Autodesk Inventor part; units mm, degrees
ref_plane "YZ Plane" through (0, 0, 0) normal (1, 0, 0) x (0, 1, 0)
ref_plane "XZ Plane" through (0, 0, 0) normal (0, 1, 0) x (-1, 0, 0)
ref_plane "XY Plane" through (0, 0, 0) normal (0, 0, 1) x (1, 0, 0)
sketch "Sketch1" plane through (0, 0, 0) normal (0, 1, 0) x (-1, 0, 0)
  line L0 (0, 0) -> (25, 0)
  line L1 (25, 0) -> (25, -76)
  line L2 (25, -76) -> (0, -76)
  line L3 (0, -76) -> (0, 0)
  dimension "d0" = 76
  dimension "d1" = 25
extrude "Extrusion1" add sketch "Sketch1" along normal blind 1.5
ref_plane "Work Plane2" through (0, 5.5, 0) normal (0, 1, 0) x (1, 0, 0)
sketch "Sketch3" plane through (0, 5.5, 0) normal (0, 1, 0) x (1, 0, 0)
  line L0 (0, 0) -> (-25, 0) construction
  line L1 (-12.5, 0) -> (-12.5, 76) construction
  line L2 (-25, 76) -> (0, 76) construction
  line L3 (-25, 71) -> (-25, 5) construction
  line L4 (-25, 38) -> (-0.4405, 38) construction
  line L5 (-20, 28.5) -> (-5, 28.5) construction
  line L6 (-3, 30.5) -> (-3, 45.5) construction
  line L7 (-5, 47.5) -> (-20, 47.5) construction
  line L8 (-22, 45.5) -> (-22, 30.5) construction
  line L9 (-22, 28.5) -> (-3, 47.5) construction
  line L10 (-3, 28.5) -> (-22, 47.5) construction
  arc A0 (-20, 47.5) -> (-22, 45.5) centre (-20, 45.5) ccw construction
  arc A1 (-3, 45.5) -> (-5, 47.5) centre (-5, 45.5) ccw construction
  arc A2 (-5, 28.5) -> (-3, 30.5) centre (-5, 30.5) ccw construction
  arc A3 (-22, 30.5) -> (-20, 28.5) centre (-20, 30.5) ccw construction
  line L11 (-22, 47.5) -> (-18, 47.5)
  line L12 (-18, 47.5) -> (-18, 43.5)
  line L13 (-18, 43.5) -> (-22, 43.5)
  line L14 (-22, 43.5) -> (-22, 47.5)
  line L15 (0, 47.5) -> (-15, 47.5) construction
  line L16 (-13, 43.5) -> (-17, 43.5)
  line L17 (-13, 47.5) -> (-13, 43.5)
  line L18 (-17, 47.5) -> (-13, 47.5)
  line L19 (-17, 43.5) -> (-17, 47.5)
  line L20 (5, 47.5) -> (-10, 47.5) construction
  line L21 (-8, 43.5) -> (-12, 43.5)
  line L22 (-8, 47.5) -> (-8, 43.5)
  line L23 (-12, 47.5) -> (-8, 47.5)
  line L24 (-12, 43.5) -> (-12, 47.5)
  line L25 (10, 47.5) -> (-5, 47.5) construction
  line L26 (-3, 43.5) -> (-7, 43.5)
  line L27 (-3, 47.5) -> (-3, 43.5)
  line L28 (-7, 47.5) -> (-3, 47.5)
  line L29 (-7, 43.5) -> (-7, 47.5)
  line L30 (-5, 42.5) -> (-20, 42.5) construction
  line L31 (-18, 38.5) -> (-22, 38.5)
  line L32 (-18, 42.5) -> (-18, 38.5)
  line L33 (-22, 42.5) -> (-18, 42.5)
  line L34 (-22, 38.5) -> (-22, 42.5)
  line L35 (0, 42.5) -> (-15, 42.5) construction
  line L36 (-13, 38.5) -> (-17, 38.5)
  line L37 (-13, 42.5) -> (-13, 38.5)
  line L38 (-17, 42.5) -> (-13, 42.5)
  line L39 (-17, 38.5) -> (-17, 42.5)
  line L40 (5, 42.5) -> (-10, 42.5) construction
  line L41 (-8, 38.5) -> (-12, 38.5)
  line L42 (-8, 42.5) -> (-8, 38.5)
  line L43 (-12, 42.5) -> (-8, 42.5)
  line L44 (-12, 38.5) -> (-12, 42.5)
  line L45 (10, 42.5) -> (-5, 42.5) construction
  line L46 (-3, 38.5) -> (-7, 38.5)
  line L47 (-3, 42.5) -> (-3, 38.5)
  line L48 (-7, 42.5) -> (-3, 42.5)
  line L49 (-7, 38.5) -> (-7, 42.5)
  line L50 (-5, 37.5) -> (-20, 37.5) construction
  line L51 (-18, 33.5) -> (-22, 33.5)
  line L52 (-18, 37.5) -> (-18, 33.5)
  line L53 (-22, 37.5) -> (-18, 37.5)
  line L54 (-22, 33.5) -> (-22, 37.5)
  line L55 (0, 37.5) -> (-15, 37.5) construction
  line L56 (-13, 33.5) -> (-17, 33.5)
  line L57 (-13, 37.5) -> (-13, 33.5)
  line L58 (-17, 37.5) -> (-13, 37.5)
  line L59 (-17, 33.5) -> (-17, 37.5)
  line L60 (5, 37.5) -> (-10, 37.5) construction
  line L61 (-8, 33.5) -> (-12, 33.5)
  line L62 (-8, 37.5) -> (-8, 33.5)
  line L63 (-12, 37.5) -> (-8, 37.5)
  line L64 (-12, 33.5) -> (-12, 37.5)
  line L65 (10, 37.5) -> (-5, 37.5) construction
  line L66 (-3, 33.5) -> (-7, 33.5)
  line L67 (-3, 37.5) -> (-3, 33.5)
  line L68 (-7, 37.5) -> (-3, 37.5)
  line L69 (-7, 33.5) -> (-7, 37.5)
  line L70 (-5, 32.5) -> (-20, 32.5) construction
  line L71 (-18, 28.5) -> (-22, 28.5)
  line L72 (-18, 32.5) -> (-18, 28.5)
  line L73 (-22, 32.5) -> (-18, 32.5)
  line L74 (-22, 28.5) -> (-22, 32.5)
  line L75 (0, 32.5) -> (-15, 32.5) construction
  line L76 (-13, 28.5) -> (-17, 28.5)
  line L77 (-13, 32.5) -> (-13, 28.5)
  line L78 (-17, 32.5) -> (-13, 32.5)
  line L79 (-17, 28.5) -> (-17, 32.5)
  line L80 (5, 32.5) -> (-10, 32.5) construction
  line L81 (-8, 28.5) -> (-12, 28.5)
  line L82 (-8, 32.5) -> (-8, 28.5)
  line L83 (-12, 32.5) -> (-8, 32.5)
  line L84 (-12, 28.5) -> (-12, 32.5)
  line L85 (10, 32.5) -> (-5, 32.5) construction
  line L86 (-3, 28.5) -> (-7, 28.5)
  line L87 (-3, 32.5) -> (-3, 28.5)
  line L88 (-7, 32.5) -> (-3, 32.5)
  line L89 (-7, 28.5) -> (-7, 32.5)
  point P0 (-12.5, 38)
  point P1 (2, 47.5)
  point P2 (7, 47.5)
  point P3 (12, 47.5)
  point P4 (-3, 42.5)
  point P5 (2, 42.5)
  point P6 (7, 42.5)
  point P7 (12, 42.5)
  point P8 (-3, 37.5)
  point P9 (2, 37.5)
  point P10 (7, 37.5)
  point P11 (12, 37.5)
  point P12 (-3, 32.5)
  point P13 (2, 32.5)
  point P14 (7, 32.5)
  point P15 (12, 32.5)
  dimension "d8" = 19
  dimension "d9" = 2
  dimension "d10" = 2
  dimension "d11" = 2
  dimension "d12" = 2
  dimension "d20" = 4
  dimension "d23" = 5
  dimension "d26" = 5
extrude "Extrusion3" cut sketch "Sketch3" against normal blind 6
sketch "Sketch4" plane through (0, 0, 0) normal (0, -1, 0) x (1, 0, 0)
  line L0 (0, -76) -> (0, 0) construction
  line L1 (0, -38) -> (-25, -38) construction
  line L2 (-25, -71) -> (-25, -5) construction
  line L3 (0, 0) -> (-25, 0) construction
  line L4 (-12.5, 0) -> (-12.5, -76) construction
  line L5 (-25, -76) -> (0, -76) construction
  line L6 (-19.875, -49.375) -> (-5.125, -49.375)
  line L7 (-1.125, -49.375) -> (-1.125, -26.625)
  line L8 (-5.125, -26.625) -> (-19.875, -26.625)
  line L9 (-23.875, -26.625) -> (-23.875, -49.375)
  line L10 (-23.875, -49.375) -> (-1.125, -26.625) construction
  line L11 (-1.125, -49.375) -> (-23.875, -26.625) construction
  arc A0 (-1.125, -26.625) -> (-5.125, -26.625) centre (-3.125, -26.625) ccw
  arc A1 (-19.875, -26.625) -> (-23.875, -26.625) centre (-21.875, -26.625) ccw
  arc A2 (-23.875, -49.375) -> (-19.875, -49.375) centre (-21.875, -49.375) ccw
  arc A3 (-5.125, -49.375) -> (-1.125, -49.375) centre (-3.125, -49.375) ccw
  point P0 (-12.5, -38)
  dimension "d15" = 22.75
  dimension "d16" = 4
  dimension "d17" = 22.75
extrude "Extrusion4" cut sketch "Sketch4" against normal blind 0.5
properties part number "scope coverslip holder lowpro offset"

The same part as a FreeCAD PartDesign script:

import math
import FreeCAD as App
import Part
import Sketcher

V = App.Vector


def add_polygon(sketch, points):
    """Adds a closed chain of lines whose ends are joined by coincident constraints."""
    first, n = sketch.GeometryCount, len(points)
    for a, b in zip(points, points[1:] + points[:1]):
        sketch.addGeometry(Part.LineSegment(App.Vector(*a, 0), App.Vector(*b, 0)), False)
    for i in range(n):
        sketch.addConstraint(Sketcher.Constraint("Coincident", first + i, 2, first + (i + 1) % n, 1))

doc = App.newDocument("Part")
params = doc.addObject("Spreadsheet::Sheet", "Params")
for row, (alias, value) in enumerate([
    ("sketch1_width", "25 mm"),
    ("sketch1_height", "76 mm"),
    ("pad1_length", "1.5 mm"),
    ("sketch2_width", "4 mm"),
    ("pocket1_length", "6 mm"),
    ("sketch3_radius", "2 mm"),
    ("sketch3_height", "22.75 mm"),
    ("pocket2_length", "0.5 mm"),
], start=1):
    params.set(f"A{row}", alias)
    params.set(f"B{row}", "=" + value)
    params.setAlias(f"B{row}", alias)

body = doc.addObject("PartDesign::Body", "Body")

sketch1 = body.newObject("Sketcher::SketchObject", "Sketch")
sketch1.AttachmentSupport = (doc.getObject("XZ_Plane"), [""])
sketch1.MapMode = "FlatFace"
add_polygon(sketch1, [(-25, 0), (0, 0), (0, -76), (-25, -76)])
sketch1.addConstraint(Sketcher.Constraint("Horizontal", 0))
sketch1.addConstraint(Sketcher.Constraint("Vertical", 1))
sketch1.addConstraint(Sketcher.Constraint("Horizontal", 2))
sketch1.addConstraint(Sketcher.Constraint("Vertical", 3))
sketch1.addConstraint(Sketcher.Constraint("Coincident", 0, 2, -1, 1))
sketch1.addConstraint(Sketcher.Constraint("DistanceX", 0, 1, 0, 2, 25.0))
sketch1.addConstraint(Sketcher.Constraint("DistanceY", 1, 2, 1, 1, 76.0))
sketch1.setExpression("Constraints[9]", "Params.sketch1_width")
sketch1.setExpression("Constraints[10]", "Params.sketch1_height")
pad1 = body.newObject("PartDesign::Pad", "Pad")
pad1.Profile = sketch1
pad1.setExpression("Length", "Params.pad1_length")
pad1.Reversed = True

sketch2 = body.newObject("Sketcher::SketchObject", "Sketch001")
sketch2.AttachmentSupport = (doc.getObject("XZ_Plane"), [""])
sketch2.MapMode = "FlatFace"
sketch2.AttachmentOffset = App.Placement(V(0, 0, -5.5), App.Rotation())
add_polygon(sketch2, [(-18, -47.5), (-22, -47.5), (-22, -43.5), (-18, -43.5)])
add_polygon(sketch2, [(-17, -43.5), (-13, -43.5), (-13, -47.5), (-17, -47.5)])
add_polygon(sketch2, [(-12, -43.5), (-8, -43.5), (-8, -47.5), (-12, -47.5)])
add_polygon(sketch2, [(-7, -43.5), (-3, -43.5), (-3, -47.5), (-7, -47.5)])
add_polygon(sketch2, [(-22, -38.5), (-18, -38.5), (-18, -42.5), (-22, -42.5)])
add_polygon(sketch2, [(-17, -38.5), (-13, -38.5), (-13, -42.5), (-17, -42.5)])
add_polygon(sketch2, [(-12, -38.5), (-8, -38.5), (-8, -42.5), (-12, -42.5)])
add_polygon(sketch2, [(-7, -38.5), (-3, -38.5), (-3, -42.5), (-7, -42.5)])
add_polygon(sketch2, [(-22, -33.5), (-18, -33.5), (-18, -37.5), (-22, -37.5)])
add_polygon(sketch2, [(-17, -33.5), (-13, -33.5), (-13, -37.5), (-17, -37.5)])
add_polygon(sketch2, [(-12, -33.5), (-8, -33.5), (-8, -37.5), (-12, -37.5)])
add_polygon(sketch2, [(-7, -33.5), (-3, -33.5), (-3, -37.5), (-7, -37.5)])
add_polygon(sketch2, [(-22, -28.5), (-18, -28.5), (-18, -32.5), (-22, -32.5)])
add_polygon(sketch2, [(-17, -28.5), (-13, -28.5), (-13, -32.5), (-17, -32.5)])
add_polygon(sketch2, [(-12, -28.5), (-8, -28.5), (-8, -32.5), (-12, -32.5)])
add_polygon(sketch2, [(-7, -28.5), (-3, -28.5), (-3, -32.5), (-7, -32.5)])
sketch2.addConstraint(Sketcher.Constraint("Horizontal", 0))
sketch2.addConstraint(Sketcher.Constraint("Vertical", 1))
sketch2.addConstraint(Sketcher.Constraint("Horizontal", 2))
sketch2.addConstraint(Sketcher.Constraint("Vertical", 3))
sketch2.addConstraint(Sketcher.Constraint("Horizontal", 4))
sketch2.addConstraint(Sketcher.Constraint("Vertical", 5))
sketch2.addConstraint(Sketcher.Constraint("Horizontal", 6))
sketch2.addConstraint(Sketcher.Constraint("Vertical", 7))
sketch2.addConstraint(Sketcher.Constraint("Horizontal", 8))
sketch2.addConstraint(Sketcher.Constraint("Vertical", 9))
sketch2.addConstraint(Sketcher.Constraint("Horizontal", 10))
sketch2.addConstraint(Sketcher.Constraint("Vertical", 11))
sketch2.addConstraint(Sketcher.Constraint("Horizontal", 12))
sketch2.addConstraint(Sketcher.Constraint("Vertical", 13))
sketch2.addConstraint(Sketcher.Constraint("Horizontal", 14))
sketch2.addConstraint(Sketcher.Constraint("Vertical", 15))
sketch2.addConstraint(Sketcher.Constraint("Horizontal", 16))
sketch2.addConstraint(Sketcher.Constraint("Vertical", 17))
sketch2.addConstraint(Sketcher.Constraint("Horizontal", 18))
sketch2.addConstraint(Sketcher.Constraint("Vertical", 19))
sketch2.addConstraint(Sketcher.Constraint("Horizontal", 20))
sketch2.addConstraint(Sketcher.Constraint("Vertical", 21))
sketch2.addConstraint(Sketcher.Constraint("Horizontal", 22))
sketch2.addConstraint(Sketcher.Constraint("Vertical", 23))
sketch2.addConstraint(Sketcher.Constraint("Horizontal", 24))
sketch2.addConstraint(Sketcher.Constraint("Vertical", 25))
sketch2.addConstraint(Sketcher.Constraint("Horizontal", 26))
sketch2.addConstraint(Sketcher.Constraint("Vertical", 27))
sketch2.addConstraint(Sketcher.Constraint("Horizontal", 28))
sketch2.addConstraint(Sketcher.Constraint("Vertical", 29))
sketch2.addConstraint(Sketcher.Constraint("Horizontal", 30))
sketch2.addConstraint(Sketcher.Constraint("Vertical", 31))
sketch2.addConstraint(Sketcher.Constraint("Horizontal", 32))
sketch2.addConstraint(Sketcher.Constraint("Vertical", 33))
sketch2.addConstraint(Sketcher.Constraint("Horizontal", 34))
sketch2.addConstraint(Sketcher.Constraint("Vertical", 35))
sketch2.addConstraint(Sketcher.Constraint("Horizontal", 36))
sketch2.addConstraint(Sketcher.Constraint("Vertical", 37))
sketch2.addConstraint(Sketcher.Constraint("Horizontal", 38))
sketch2.addConstraint(Sketcher.Constraint("Vertical", 39))
sketch2.addConstraint(Sketcher.Constraint("Horizontal", 40))
sketch2.addConstraint(Sketcher.Constraint("Vertical", 41))
sketch2.addConstraint(Sketcher.Constraint("Horizontal", 42))
sketch2.addConstraint(Sketcher.Constraint("Vertical", 43))
sketch2.addConstraint(Sketcher.Constraint("Horizontal", 44))
sketch2.addConstraint(Sketcher.Constraint("Vertical", 45))
sketch2.addConstraint(Sketcher.Constraint("Horizontal", 46))
sketch2.addConstraint(Sketcher.Constraint("Vertical", 47))
sketch2.addConstraint(Sketcher.Constraint("Horizontal", 48))
sketch2.addConstraint(Sketcher.Constraint("Vertical", 49))
sketch2.addConstraint(Sketcher.Constraint("Horizontal", 50))
sketch2.addConstraint(Sketcher.Constraint("Vertical", 51))
sketch2.addConstraint(Sketcher.Constraint("Horizontal", 52))
sketch2.addConstraint(Sketcher.Constraint("Vertical", 53))
sketch2.addConstraint(Sketcher.Constraint("Horizontal", 54))
sketch2.addConstraint(Sketcher.Constraint("Vertical", 55))
sketch2.addConstraint(Sketcher.Constraint("Horizontal", 56))
sketch2.addConstraint(Sketcher.Constraint("Vertical", 57))
sketch2.addConstraint(Sketcher.Constraint("Horizontal", 58))
sketch2.addConstraint(Sketcher.Constraint("Vertical", 59))
sketch2.addConstraint(Sketcher.Constraint("Horizontal", 60))
sketch2.addConstraint(Sketcher.Constraint("Vertical", 61))
sketch2.addConstraint(Sketcher.Constraint("Horizontal", 62))
sketch2.addConstraint(Sketcher.Constraint("Vertical", 63))
sketch2.addConstraint(Sketcher.Constraint("Horizontal", 2, 2, 4, 2))
sketch2.addConstraint(Sketcher.Constraint("Horizontal", 3, 2, 5, 2))
sketch2.addConstraint(Sketcher.Constraint("Horizontal", 7, 2, 8, 2))
sketch2.addConstraint(Sketcher.Constraint("Horizontal", 6, 2, 9, 2))
sketch2.addConstraint(Sketcher.Constraint("Horizontal", 11, 2, 12, 2))
sketch2.addConstraint(Sketcher.Constraint("Horizontal", 10, 2, 13, 2))
sketch2.addConstraint(Sketcher.Constraint("Horizontal", 19, 2, 20, 2))
sketch2.addConstraint(Sketcher.Constraint("Horizontal", 18, 2, 21, 2))
sketch2.addConstraint(Sketcher.Constraint("Horizontal", 23, 2, 24, 2))
sketch2.addConstraint(Sketcher.Constraint("Horizontal", 22, 2, 25, 2))
sketch2.addConstraint(Sketcher.Constraint("Horizontal", 27, 2, 28, 2))
sketch2.addConstraint(Sketcher.Constraint("Horizontal", 26, 2, 29, 2))
sketch2.addConstraint(Sketcher.Constraint("Horizontal", 35, 2, 36, 2))
sketch2.addConstraint(Sketcher.Constraint("Horizontal", 34, 2, 37, 2))
sketch2.addConstraint(Sketcher.Constraint("Horizontal", 39, 2, 40, 2))
sketch2.addConstraint(Sketcher.Constraint("Horizontal", 38, 2, 41, 2))
sketch2.addConstraint(Sketcher.Constraint("Horizontal", 43, 2, 44, 2))
sketch2.addConstraint(Sketcher.Constraint("Horizontal", 42, 2, 45, 2))
sketch2.addConstraint(Sketcher.Constraint("Horizontal", 51, 2, 52, 2))
sketch2.addConstraint(Sketcher.Constraint("Horizontal", 50, 2, 53, 2))
sketch2.addConstraint(Sketcher.Constraint("Horizontal", 55, 2, 56, 2))
sketch2.addConstraint(Sketcher.Constraint("Horizontal", 54, 2, 57, 2))
sketch2.addConstraint(Sketcher.Constraint("Horizontal", 59, 2, 60, 2))
sketch2.addConstraint(Sketcher.Constraint("Horizontal", 58, 2, 61, 2))
sketch2.addConstraint(Sketcher.Constraint("Vertical", 3, 2, 16, 2))
sketch2.addConstraint(Sketcher.Constraint("Vertical", 1, 2, 18, 2))
sketch2.addConstraint(Sketcher.Constraint("Vertical", 5, 2, 20, 2))
sketch2.addConstraint(Sketcher.Constraint("Vertical", 7, 2, 22, 2))
sketch2.addConstraint(Sketcher.Constraint("Vertical", 9, 2, 24, 2))
sketch2.addConstraint(Sketcher.Constraint("Vertical", 11, 2, 26, 2))
sketch2.addConstraint(Sketcher.Constraint("Vertical", 13, 2, 28, 2))
sketch2.addConstraint(Sketcher.Constraint("Vertical", 15, 2, 30, 2))
sketch2.addConstraint(Sketcher.Constraint("Vertical", 17, 2, 32, 2))
sketch2.addConstraint(Sketcher.Constraint("Vertical", 19, 2, 34, 2))
sketch2.addConstraint(Sketcher.Constraint("Vertical", 21, 2, 36, 2))
sketch2.addConstraint(Sketcher.Constraint("Vertical", 23, 2, 38, 2))
sketch2.addConstraint(Sketcher.Constraint("Vertical", 25, 2, 40, 2))
sketch2.addConstraint(Sketcher.Constraint("Vertical", 27, 2, 42, 2))
sketch2.addConstraint(Sketcher.Constraint("Vertical", 29, 2, 44, 2))
sketch2.addConstraint(Sketcher.Constraint("Vertical", 31, 2, 46, 2))
sketch2.addConstraint(Sketcher.Constraint("Vertical", 33, 2, 48, 2))
sketch2.addConstraint(Sketcher.Constraint("Vertical", 35, 2, 50, 2))
sketch2.addConstraint(Sketcher.Constraint("Vertical", 37, 2, 52, 2))
sketch2.addConstraint(Sketcher.Constraint("Vertical", 39, 2, 54, 2))
sketch2.addConstraint(Sketcher.Constraint("Vertical", 41, 2, 56, 2))
sketch2.addConstraint(Sketcher.Constraint("Vertical", 43, 2, 58, 2))
sketch2.addConstraint(Sketcher.Constraint("Vertical", 45, 2, 60, 2))
sketch2.addConstraint(Sketcher.Constraint("Vertical", 47, 2, 62, 2))
sketch2.addConstraint(Sketcher.Constraint("Equal", 2, 4))
sketch2.addConstraint(Sketcher.Constraint("Equal", 6, 8))
sketch2.addConstraint(Sketcher.Constraint("Equal", 10, 12))
sketch2.addConstraint(Sketcher.Constraint("Equal", 62, 1))
sketch2.addConstraint(Sketcher.Constraint("Equal", 15, 17))
sketch2.addConstraint(Sketcher.Constraint("Equal", 31, 33))
sketch2.addConstraint(Sketcher.Constraint("Equal", 47, 49))
sketch2.addConstraint(Sketcher.Constraint("DistanceX", 0, 2, 0, 1, 4.0))
sketch2.addConstraint(Sketcher.Constraint("DistanceX", 0, 2, -1, 1, 22.0))
sketch2.addConstraint(Sketcher.Constraint("DistanceX", 4, 2, -1, 1, 13.0))
sketch2.addConstraint(Sketcher.Constraint("DistanceX", 8, 2, -1, 1, 8.0))
sketch2.addConstraint(Sketcher.Constraint("DistanceX", 12, 2, -1, 1, 3.0))
sketch2.addConstraint(Sketcher.Constraint("DistanceY", 0, 2, -1, 1, 47.5))
sketch2.addConstraint(Sketcher.Constraint("DistanceY", 16, 2, -1, 1, 38.5))
sketch2.addConstraint(Sketcher.Constraint("DistanceY", 32, 2, -1, 1, 33.5))
sketch2.addConstraint(Sketcher.Constraint("DistanceY", 48, 2, -1, 1, 28.5))
sketch2.setExpression("Constraints[183]", "Params.sketch2_width")
pocket1 = body.newObject("PartDesign::Pocket", "Pocket")
pocket1.Profile = sketch2
pocket1.setExpression("Length", "Params.pocket1_length")
pocket1.Reversed = True

sketch3 = body.newObject("Sketcher::SketchObject", "Sketch002")
sketch3.AttachmentSupport = (doc.getObject("XZ_Plane"), [""])
sketch3.MapMode = "FlatFace"
sketch3.addGeometry(Part.ArcOfCircle(Part.Circle(V(-21.9, -49.4, 0), V(0, 0, 1), 2), math.radians(180), math.radians(360)), False)
sketch3.addGeometry(Part.LineSegment(V(-19.9, -49.4, 0), V(-5.1, -49.4, 0)), False)
sketch3.addGeometry(Part.ArcOfCircle(Part.Circle(V(-3.1, -49.4, 0), V(0, 0, 1), 2), math.radians(180), math.radians(360)), False)
sketch3.addGeometry(Part.LineSegment(V(-1.1, -49.4, 0), V(-1.1, -26.6, 0)), False)
sketch3.addGeometry(Part.ArcOfCircle(Part.Circle(V(-3.1, -26.6, 0), V(0, 0, 1), 2), math.radians(0), math.radians(180)), False)
sketch3.addGeometry(Part.LineSegment(V(-5.1, -26.6, 0), V(-19.9, -26.6, 0)), False)
sketch3.addGeometry(Part.ArcOfCircle(Part.Circle(V(-21.9, -26.6, 0), V(0, 0, 1), 2), math.radians(0), math.radians(180)), False)
sketch3.addGeometry(Part.LineSegment(V(-23.9, -26.6, 0), V(-23.9, -49.4, 0)), False)
sketch3.addConstraint(Sketcher.Constraint("Coincident", 0, 2, 1, 1))
sketch3.addConstraint(Sketcher.Constraint("Coincident", 1, 2, 2, 1))
sketch3.addConstraint(Sketcher.Constraint("Tangent", 2, 2, 3, 1))
sketch3.addConstraint(Sketcher.Constraint("Tangent", 3, 2, 4, 1))
sketch3.addConstraint(Sketcher.Constraint("Coincident", 4, 2, 5, 1))
sketch3.addConstraint(Sketcher.Constraint("Coincident", 5, 2, 6, 1))
sketch3.addConstraint(Sketcher.Constraint("Tangent", 6, 2, 7, 1))
sketch3.addConstraint(Sketcher.Constraint("Tangent", 7, 2, 0, 1))
sketch3.addConstraint(Sketcher.Constraint("Horizontal", 1))
sketch3.addConstraint(Sketcher.Constraint("Vertical", 3))
sketch3.addConstraint(Sketcher.Constraint("Horizontal", 5))
sketch3.addConstraint(Sketcher.Constraint("Vertical", 7))
sketch3.addConstraint(Sketcher.Constraint("Equal", 0, 2))
sketch3.addConstraint(Sketcher.Constraint("Equal", 2, 4))
sketch3.addConstraint(Sketcher.Constraint("Equal", 4, 6))
sketch3.addConstraint(Sketcher.Constraint("Horizontal", 0, 3, 2, 3))
sketch3.addConstraint(Sketcher.Constraint("Horizontal", 4, 3, 6, 3))
sketch3.addConstraint(Sketcher.Constraint("Horizontal", 2, 3, 0, 2))
sketch3.addConstraint(Sketcher.Constraint("Horizontal", 3, 2, 4, 2))
sketch3.addConstraint(Sketcher.Constraint("Radius", 0, 2.0))
sketch3.addConstraint(Sketcher.Constraint("DistanceY", 3, 1, 3, 2, 22.75))
sketch3.addConstraint(Sketcher.Constraint("DistanceX", 6, 2, 3, 2, 22.75))
sketch3.addConstraint(Sketcher.Constraint("DistanceX", 0, 3, -1, 1, 21.875))
sketch3.addConstraint(Sketcher.Constraint("DistanceY", 0, 3, -1, 1, 49.375))
sketch3.setExpression("Constraints[19]", "Params.sketch3_radius")
sketch3.setExpression("Constraints[20]", "Params.sketch3_height")
pocket2 = body.newObject("PartDesign::Pocket", "Pocket001")
pocket2.Profile = sketch3
pocket2.setExpression("Length", "Params.pocket2_length")

doc.recompute()
